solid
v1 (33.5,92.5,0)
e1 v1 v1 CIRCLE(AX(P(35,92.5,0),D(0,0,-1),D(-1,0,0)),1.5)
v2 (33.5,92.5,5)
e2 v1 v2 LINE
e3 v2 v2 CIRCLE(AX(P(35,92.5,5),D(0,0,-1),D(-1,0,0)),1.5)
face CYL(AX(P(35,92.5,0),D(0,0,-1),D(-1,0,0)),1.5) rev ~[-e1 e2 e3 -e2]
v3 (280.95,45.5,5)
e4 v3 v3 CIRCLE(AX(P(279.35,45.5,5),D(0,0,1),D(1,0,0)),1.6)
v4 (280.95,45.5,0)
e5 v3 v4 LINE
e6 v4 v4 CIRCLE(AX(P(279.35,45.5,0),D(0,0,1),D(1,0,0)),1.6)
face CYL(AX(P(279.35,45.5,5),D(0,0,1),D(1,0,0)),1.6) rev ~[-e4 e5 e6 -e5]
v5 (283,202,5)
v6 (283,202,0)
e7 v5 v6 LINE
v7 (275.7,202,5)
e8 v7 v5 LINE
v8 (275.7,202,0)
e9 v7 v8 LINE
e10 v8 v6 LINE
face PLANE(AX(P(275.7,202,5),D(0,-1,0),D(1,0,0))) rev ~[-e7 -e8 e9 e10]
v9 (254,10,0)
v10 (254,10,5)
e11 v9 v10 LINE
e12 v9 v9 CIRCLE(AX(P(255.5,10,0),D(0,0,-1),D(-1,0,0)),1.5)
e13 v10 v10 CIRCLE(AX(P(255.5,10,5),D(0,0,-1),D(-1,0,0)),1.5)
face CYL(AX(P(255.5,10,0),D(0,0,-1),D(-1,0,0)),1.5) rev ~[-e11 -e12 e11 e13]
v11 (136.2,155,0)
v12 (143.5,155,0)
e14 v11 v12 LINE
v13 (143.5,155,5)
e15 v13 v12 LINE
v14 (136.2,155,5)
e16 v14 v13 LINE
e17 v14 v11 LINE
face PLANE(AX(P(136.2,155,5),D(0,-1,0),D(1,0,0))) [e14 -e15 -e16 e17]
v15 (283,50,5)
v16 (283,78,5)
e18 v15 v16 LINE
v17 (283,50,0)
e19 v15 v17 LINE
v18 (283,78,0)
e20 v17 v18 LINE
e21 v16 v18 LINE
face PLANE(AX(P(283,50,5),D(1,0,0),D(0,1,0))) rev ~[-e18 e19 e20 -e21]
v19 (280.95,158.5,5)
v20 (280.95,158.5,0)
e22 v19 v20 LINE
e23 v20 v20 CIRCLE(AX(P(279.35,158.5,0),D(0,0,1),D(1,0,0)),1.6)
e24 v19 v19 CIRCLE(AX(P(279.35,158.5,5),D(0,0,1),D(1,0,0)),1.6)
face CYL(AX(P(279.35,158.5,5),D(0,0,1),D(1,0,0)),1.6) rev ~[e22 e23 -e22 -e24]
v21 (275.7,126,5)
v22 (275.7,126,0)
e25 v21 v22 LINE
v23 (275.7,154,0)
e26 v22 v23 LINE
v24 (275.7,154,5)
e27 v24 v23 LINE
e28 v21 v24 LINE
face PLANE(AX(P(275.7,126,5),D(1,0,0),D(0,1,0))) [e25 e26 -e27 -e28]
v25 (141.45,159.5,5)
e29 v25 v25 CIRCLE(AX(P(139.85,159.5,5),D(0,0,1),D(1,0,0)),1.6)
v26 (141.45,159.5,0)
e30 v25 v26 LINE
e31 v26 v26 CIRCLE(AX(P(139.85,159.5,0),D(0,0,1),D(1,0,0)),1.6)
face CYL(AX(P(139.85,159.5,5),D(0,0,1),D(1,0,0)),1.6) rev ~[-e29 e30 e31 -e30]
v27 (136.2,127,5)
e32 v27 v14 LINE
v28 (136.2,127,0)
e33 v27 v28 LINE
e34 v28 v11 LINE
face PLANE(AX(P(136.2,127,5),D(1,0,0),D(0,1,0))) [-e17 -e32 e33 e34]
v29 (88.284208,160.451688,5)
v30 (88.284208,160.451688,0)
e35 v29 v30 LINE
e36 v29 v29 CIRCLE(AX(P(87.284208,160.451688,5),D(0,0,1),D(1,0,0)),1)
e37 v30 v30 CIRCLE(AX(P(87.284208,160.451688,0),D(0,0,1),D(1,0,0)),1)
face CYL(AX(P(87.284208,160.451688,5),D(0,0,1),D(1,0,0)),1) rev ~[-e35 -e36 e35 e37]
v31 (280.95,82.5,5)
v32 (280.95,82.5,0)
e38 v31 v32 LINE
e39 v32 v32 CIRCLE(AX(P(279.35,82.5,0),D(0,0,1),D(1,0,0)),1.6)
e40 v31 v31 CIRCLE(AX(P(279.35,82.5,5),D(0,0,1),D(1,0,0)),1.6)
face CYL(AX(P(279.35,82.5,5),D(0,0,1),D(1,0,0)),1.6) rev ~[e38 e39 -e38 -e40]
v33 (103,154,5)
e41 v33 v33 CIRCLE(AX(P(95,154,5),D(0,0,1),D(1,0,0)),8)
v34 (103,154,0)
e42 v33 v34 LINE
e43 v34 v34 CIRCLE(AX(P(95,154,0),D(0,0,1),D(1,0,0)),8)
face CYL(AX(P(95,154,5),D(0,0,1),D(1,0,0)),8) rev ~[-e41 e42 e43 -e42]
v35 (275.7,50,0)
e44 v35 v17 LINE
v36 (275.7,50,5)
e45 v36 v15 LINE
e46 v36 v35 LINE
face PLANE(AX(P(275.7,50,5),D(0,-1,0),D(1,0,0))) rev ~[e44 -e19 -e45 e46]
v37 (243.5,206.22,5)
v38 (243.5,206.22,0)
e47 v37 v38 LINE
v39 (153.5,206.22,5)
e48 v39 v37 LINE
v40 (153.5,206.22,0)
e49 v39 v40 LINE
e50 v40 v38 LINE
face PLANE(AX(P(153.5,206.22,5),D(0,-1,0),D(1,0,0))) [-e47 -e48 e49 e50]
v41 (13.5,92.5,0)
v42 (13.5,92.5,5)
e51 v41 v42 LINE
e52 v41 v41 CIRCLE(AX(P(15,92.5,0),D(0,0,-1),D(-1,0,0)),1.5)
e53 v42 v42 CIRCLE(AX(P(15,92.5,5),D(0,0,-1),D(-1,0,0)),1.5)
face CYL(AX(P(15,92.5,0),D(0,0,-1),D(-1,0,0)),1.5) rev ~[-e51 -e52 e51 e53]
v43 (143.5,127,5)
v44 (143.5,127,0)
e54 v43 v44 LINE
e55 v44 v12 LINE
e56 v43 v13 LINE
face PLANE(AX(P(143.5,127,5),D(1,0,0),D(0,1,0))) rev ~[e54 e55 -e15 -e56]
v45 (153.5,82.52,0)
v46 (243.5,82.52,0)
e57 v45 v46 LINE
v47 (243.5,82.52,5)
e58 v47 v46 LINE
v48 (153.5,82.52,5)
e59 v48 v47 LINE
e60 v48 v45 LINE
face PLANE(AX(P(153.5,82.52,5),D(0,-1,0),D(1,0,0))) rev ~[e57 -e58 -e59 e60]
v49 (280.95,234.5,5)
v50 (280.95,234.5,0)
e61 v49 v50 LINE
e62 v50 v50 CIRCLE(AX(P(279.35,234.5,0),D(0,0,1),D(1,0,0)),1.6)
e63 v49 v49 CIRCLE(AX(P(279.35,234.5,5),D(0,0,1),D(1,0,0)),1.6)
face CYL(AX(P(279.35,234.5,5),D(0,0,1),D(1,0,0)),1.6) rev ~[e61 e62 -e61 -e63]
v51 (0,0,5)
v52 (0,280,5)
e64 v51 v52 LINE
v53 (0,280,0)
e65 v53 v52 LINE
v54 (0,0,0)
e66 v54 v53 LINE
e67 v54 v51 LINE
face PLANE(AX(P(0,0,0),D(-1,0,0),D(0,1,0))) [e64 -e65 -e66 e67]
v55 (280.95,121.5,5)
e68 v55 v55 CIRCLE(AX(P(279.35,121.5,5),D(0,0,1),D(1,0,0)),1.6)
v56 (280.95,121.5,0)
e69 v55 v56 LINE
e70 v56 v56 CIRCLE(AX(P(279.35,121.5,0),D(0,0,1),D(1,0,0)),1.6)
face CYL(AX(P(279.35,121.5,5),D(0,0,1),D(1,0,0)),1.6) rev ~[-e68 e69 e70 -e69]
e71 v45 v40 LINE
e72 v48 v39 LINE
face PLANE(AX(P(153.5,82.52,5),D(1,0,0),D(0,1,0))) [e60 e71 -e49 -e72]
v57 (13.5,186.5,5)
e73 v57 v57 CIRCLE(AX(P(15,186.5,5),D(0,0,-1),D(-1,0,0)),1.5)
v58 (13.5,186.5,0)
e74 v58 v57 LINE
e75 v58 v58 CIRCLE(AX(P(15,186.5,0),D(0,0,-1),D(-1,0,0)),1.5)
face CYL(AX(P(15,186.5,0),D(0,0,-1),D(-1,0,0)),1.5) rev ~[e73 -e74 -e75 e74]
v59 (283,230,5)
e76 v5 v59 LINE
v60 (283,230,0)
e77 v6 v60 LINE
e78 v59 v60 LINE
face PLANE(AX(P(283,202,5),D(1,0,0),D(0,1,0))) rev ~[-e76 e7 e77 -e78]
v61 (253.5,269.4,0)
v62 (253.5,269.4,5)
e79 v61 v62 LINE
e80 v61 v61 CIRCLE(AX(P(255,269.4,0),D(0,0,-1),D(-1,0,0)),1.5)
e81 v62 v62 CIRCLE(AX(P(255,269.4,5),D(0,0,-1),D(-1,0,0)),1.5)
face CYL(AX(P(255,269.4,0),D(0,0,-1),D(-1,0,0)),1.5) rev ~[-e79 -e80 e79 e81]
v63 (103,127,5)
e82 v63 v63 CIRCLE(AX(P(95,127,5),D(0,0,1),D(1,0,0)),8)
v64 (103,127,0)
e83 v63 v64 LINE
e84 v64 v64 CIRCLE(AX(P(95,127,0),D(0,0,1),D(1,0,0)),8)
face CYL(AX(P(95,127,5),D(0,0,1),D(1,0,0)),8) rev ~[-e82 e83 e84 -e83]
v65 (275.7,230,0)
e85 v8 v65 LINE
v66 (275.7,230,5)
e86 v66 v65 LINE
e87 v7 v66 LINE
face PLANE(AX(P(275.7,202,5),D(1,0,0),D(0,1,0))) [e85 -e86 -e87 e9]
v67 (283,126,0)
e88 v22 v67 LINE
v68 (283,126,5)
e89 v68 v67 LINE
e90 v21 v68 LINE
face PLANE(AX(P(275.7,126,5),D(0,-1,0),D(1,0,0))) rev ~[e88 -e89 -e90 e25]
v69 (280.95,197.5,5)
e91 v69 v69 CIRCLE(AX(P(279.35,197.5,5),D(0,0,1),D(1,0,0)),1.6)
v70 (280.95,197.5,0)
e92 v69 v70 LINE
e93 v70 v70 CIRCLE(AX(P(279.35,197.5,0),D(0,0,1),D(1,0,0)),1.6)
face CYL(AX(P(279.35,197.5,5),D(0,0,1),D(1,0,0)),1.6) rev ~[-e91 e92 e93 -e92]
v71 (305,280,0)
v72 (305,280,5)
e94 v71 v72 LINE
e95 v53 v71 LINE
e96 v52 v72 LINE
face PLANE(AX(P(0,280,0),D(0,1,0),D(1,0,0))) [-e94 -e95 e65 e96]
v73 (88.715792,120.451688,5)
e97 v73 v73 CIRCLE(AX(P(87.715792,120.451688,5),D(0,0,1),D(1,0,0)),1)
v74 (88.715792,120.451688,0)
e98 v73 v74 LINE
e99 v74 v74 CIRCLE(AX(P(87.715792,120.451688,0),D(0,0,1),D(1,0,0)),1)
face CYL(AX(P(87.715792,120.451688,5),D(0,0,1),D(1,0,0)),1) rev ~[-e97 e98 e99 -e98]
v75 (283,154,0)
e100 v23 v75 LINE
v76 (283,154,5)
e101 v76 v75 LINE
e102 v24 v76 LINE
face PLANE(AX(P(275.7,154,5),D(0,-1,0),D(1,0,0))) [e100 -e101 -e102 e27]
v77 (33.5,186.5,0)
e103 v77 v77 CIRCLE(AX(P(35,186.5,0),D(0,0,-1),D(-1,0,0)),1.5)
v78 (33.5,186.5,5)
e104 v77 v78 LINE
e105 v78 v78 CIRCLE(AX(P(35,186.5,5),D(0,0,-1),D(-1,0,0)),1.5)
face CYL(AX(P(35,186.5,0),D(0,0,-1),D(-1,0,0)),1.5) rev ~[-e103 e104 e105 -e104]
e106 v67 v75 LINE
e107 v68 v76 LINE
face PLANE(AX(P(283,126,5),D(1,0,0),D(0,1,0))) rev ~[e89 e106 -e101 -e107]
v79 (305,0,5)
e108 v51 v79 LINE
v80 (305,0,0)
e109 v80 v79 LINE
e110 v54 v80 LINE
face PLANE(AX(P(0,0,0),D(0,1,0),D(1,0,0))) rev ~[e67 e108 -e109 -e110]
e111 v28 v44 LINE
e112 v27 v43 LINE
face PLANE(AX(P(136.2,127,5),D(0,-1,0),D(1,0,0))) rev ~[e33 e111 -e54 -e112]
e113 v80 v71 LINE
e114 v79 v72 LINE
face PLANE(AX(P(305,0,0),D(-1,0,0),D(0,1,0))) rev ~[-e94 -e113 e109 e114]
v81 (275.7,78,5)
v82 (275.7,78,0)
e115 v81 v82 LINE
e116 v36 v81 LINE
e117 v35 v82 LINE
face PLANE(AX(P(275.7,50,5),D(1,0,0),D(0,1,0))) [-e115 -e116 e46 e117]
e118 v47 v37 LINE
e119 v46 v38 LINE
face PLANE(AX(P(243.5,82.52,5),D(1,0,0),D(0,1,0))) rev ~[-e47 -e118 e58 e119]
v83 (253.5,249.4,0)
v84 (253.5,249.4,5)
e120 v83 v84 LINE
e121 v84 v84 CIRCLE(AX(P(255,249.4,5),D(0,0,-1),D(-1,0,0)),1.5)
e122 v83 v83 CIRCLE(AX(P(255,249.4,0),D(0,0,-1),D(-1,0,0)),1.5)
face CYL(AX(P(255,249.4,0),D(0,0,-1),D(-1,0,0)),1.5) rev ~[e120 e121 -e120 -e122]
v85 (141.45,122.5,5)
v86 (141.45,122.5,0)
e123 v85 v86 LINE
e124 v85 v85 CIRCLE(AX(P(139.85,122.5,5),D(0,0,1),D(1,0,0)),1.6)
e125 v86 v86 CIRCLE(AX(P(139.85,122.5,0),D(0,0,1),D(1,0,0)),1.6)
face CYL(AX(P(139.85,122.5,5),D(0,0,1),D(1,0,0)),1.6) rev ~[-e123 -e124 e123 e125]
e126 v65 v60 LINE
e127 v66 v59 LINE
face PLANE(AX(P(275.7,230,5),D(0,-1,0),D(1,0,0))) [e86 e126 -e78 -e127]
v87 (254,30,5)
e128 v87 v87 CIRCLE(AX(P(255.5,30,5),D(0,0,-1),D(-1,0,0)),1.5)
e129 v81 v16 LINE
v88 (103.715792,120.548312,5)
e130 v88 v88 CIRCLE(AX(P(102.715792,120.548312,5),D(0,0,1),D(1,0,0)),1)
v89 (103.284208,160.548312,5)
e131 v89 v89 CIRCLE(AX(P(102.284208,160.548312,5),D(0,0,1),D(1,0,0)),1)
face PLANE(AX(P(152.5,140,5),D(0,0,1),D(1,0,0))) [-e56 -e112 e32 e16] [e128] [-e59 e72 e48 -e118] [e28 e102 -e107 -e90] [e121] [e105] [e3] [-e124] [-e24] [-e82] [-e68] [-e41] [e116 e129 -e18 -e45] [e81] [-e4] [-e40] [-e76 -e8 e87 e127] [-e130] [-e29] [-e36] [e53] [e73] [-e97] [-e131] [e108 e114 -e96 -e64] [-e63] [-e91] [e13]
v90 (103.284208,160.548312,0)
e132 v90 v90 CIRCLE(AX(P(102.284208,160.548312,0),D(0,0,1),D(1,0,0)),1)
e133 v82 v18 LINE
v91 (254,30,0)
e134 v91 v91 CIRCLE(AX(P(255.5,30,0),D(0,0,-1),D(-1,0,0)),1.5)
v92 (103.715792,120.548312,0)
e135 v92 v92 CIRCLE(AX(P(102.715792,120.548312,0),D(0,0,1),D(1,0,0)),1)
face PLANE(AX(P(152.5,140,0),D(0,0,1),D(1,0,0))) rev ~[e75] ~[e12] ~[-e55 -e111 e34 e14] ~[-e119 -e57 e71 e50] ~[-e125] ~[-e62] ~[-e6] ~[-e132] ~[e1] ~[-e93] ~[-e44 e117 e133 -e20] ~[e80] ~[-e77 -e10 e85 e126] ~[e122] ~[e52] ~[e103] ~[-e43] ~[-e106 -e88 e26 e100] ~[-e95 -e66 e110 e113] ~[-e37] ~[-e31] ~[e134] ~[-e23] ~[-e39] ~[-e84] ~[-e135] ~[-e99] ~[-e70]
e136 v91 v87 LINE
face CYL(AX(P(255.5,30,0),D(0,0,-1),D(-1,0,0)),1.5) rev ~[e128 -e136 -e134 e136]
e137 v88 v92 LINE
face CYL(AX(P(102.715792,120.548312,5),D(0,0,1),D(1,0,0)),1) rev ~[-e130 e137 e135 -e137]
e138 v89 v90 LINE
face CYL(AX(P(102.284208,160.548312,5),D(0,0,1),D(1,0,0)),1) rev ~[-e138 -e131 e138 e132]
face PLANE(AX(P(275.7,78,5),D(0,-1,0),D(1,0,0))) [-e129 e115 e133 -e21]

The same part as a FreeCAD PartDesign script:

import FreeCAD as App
import Part
import Sketcher

V = App.Vector


def add_polygon(sketch, points):
    """Adds a closed chain of lines whose ends are joined by coincident constraints."""
    first, n = sketch.GeometryCount, len(points)
    for a, b in zip(points, points[1:] + points[:1]):
        sketch.addGeometry(Part.LineSegment(App.Vector(*a, 0), App.Vector(*b, 0)), False)
    for i in range(n):
        sketch.addConstraint(Sketcher.Constraint("Coincident", first + i, 2, first + (i + 1) % n, 1))

doc = App.newDocument("Part")
body = doc.addObject("PartDesign::Body", "Body")

# Sketch on XY plane
sketch1 = doc.addObject("Sketcher::SketchObject", "Sketch")
body.addObject(sketch1)
sketch1.AttachmentSupport = (doc.XY_Plane, [""])
sketch1.MapMode = "FlatFace"
add_polygon(sketch1, [(0, 280), (0, 0), (305, 0), (305, 280)])  # lines 0-3
sketch1.addConstraint(Sketcher.Constraint("Vertical", 0))
sketch1.addConstraint(Sketcher.Constraint("Horizontal", 1))
sketch1.addConstraint(Sketcher.Constraint("Vertical", 2))
sketch1.addConstraint(Sketcher.Constraint("Horizontal", 3))
sketch1.addConstraint(Sketcher.Constraint("Coincident", 0, 2, -1, 1))
sketch1.addConstraint(Sketcher.Constraint("DistanceX", 1, 1, 1, 2, 305.0))
sketch1.addConstraint(Sketcher.Constraint("DistanceY", 0, 2, 0, 1, 280.0))
pad1 = doc.addObject("PartDesign::Pad", "Pad")
body.addObject(pad1)
pad1.Profile = sketch1
pad1.Length = 5

# Sketch on XY plane
sketch2 = doc.addObject("Sketcher::SketchObject", "Sketch001")
body.addObject(sketch2)
sketch2.AttachmentSupport = (doc.XY_Plane, [""])
sketch2.MapMode = "FlatFace"
sketch2.AttachmentOffset = App.Placement(V(0, 0, 5), App.Rotation())
add_polygon(sketch2, [(153.5, 206.22), (153.5, 82.52), (243.5, 82.52), (243.5, 206.22)])  # lines 0-3
sketch2.addConstraint(Sketcher.Constraint("Vertical", 0))
sketch2.addConstraint(Sketcher.Constraint("Horizontal", 1))
sketch2.addConstraint(Sketcher.Constraint("Vertical", 2))
sketch2.addConstraint(Sketcher.Constraint("Horizontal", 3))
sketch2.addConstraint(Sketcher.Constraint("DistanceX", 1, 1, 1, 2, 90.0))
sketch2.addConstraint(Sketcher.Constraint("DistanceY", 0, 2, 0, 1, 123.7))
sketch2.addConstraint(Sketcher.Constraint("DistanceX", -1, 1, 0, 2, 153.5))
sketch2.addConstraint(Sketcher.Constraint("DistanceY", -1, 1, 0, 2, 82.52))
pocket1 = doc.addObject("PartDesign::Pocket", "Pocket")
body.addObject(pocket1)
pocket1.Profile = sketch2
pocket1.Length = 5

# Sketch on XY plane
sketch3 = doc.addObject("Sketcher::SketchObject", "Sketch002")
body.addObject(sketch3)
sketch3.AttachmentSupport = (doc.XY_Plane, [""])
sketch3.MapMode = "FlatFace"
sketch3.addGeometry(Part.Circle(V(15, 92.5, 0), V(0, 0, 1), 1.5), False)
sketch3.addGeometry(Part.Circle(V(35, 92.5, 0), V(0, 0, 1), 1.5), False)
sketch3.addGeometry(Part.Circle(V(35, 186.5, 0), V(0, 0, 1), 1.5), False)
sketch3.addGeometry(Part.Circle(V(15, 186.5, 0), V(0, 0, 1), 1.5), False)
sketch3.addGeometry(Part.Circle(V(255, 249.4, 0), V(0, 0, 1), 1.5), False)
sketch3.addGeometry(Part.Circle(V(255, 269.4, 0), V(0, 0, 1), 1.5), False)
sketch3.addGeometry(Part.Circle(V(255.5, 10, 0), V(0, 0, 1), 1.5), False)
sketch3.addGeometry(Part.Circle(V(255.5, 30, 0), V(0, 0, 1), 1.5), False)
sketch3.addConstraint(Sketcher.Constraint("Equal", 0, 1))
sketch3.addConstraint(Sketcher.Constraint("Equal", 1, 2))
sketch3.addConstraint(Sketcher.Constraint("Equal", 2, 3))
sketch3.addConstraint(Sketcher.Constraint("Equal", 3, 4))
sketch3.addConstraint(Sketcher.Constraint("Equal", 4, 5))
sketch3.addConstraint(Sketcher.Constraint("Equal", 5, 6))
sketch3.addConstraint(Sketcher.Constraint("Equal", 6, 7))
sketch3.addConstraint(Sketcher.Constraint("Horizontal", 0, 3, 1, 3))
sketch3.addConstraint(Sketcher.Constraint("Horizontal", 2, 3, 3, 3))
sketch3.addConstraint(Sketcher.Constraint("Vertical", 1, 3, 2, 3))
sketch3.addConstraint(Sketcher.Constraint("Vertical", 0, 3, 3, 3))
sketch3.addConstraint(Sketcher.Constraint("Vertical", 4, 3, 5, 3))
sketch3.addConstraint(Sketcher.Constraint("Vertical", 6, 3, 7, 3))
sketch3.addConstraint(Sketcher.Constraint("Diameter", 0, 3.0))
sketch3.addConstraint(Sketcher.Constraint("DistanceX", -1, 1, 0, 3, 15.0))
sketch3.addConstraint(Sketcher.Constraint("DistanceX", -1, 1, 1, 3, 35.0))
sketch3.addConstraint(Sketcher.Constraint("DistanceX", -1, 1, 4, 3, 255.0))
sketch3.addConstraint(Sketcher.Constraint("DistanceY", -1, 1, 6, 3, 10.0))
sketch3.addConstraint(Sketcher.Constraint("DistanceY", -1, 1, 7, 3, 30.0))
sketch3.addConstraint(Sketcher.Constraint("DistanceY", 1, 3, 2, 3, 94.0))
sketch3.addConstraint(Sketcher.Constraint("DistanceY", 4, 3, 5, 3, 20.0))
sketch3.addConstraint(Sketcher.Constraint("DistanceY", -1, 1, 0, 3, 92.5))
sketch3.addConstraint(Sketcher.Constraint("DistanceY", -1, 1, 4, 3, 249.4))
sketch3.addConstraint(Sketcher.Constraint("DistanceX", -1, 1, 6, 3, 255.5))
pocket2 = doc.addObject("PartDesign::Pocket", "Pocket001")
body.addObject(pocket2)
pocket2.Profile = sketch3
pocket2.Type = "ThroughAll"
pocket2.Reversed = True

# Sketch on XY plane
sketch4 = doc.addObject("Sketcher::SketchObject", "Sketch003")
body.addObject(sketch4)
sketch4.AttachmentSupport = (doc.XY_Plane, [""])
sketch4.MapMode = "FlatFace"
sketch4.AttachmentOffset = App.Placement(V(0, 0, 5), App.Rotation())
sketch4.addGeometry(Part.Circle(V(139.85, 159.5, 0), V(0, 0, 1), 1.6), False)  # 0
sketch4.addGeometry(Part.Circle(V(139.85, 122.5, 0), V(0, 0, 1), 1.6), False)  # 1
sketch4.addGeometry(Part.Circle(V(279.35, 82.5, 0), V(0, 0, 1), 1.6), False)  # 2
sketch4.addGeometry(Part.Circle(V(279.35, 45.5, 0), V(0, 0, 1), 1.6), False)  # 3
sketch4.addGeometry(Part.Circle(V(279.35, 121.5, 0), V(0, 0, 1), 1.6), False)  # 4
sketch4.addGeometry(Part.Circle(V(279.35, 158.5, 0), V(0, 0, 1), 1.6), False)  # 5
sketch4.addGeometry(Part.Circle(V(279.35, 197.5, 0), V(0, 0, 1), 1.6), False)  # 6
sketch4.addGeometry(Part.Circle(V(279.35, 234.5, 0), V(0, 0, 1), 1.6), False)  # 7
add_polygon(sketch4, [(275.7, 78), (275.7, 50), (283, 50), (283, 78)])  # lines 8-11
add_polygon(sketch4, [(275.7, 154), (275.7, 126), (283, 126), (283, 154)])  # lines 12-15
add_polygon(sketch4, [(275.7, 230), (275.7, 202), (283, 202), (283, 230)])  # lines 16-19
add_polygon(sketch4, [(136.2, 155), (136.2, 127), (143.5, 127), (143.5, 155)])  # lines 20-23
sketch4.addConstraint(Sketcher.Constraint("Vertical", 8))
sketch4.addConstraint(Sketcher.Constraint("Horizontal", 9))
sketch4.addConstraint(Sketcher.Constraint("Vertical", 10))
sketch4.addConstraint(Sketcher.Constraint("Horizontal", 11))
sketch4.addConstraint(Sketcher.Constraint("Vertical", 12))
sketch4.addConstraint(Sketcher.Constraint("Horizontal", 13))
sketch4.addConstraint(Sketcher.Constraint("Vertical", 14))
sketch4.addConstraint(Sketcher.Constraint("Horizontal", 15))
sketch4.addConstraint(Sketcher.Constraint("Vertical", 16))
sketch4.addConstraint(Sketcher.Constraint("Horizontal", 17))
sketch4.addConstraint(Sketcher.Constraint("Vertical", 18))
sketch4.addConstraint(Sketcher.Constraint("Horizontal", 19))
sketch4.addConstraint(Sketcher.Constraint("Vertical", 20))
sketch4.addConstraint(Sketcher.Constraint("Horizontal", 21))
sketch4.addConstraint(Sketcher.Constraint("Vertical", 22))
sketch4.addConstraint(Sketcher.Constraint("Horizontal", 23))
sketch4.addConstraint(Sketcher.Constraint("Equal", 0, 1))
sketch4.addConstraint(Sketcher.Constraint("Equal", 1, 2))
sketch4.addConstraint(Sketcher.Constraint("Equal", 2, 3))
sketch4.addConstraint(Sketcher.Constraint("Equal", 3, 4))
sketch4.addConstraint(Sketcher.Constraint("Equal", 4, 5))
sketch4.addConstraint(Sketcher.Constraint("Equal", 5, 6))
sketch4.addConstraint(Sketcher.Constraint("Equal", 6, 7))
sketch4.addConstraint(Sketcher.Constraint("Vertical", 0, 3, 1, 3))
sketch4.addConstraint(Sketcher.Constraint("Vertical", 2, 3, 3, 3))
sketch4.addConstraint(Sketcher.Constraint("Vertical", 3, 3, 4, 3))
sketch4.addConstraint(Sketcher.Constraint("Vertical", 4, 3, 5, 3))
sketch4.addConstraint(Sketcher.Constraint("Vertical", 5, 3, 6, 3))
sketch4.addConstraint(Sketcher.Constraint("Vertical", 6, 3, 7, 3))
sketch4.addConstraint(Sketcher.Constraint("Vertical", 11, 2, 12, 2))
sketch4.addConstraint(Sketcher.Constraint("Vertical", 10, 2, 13, 2))
sketch4.addConstraint(Sketcher.Constraint("Vertical", 15, 2, 16, 2))
sketch4.addConstraint(Sketcher.Constraint("Vertical", 14, 2, 17, 2))
sketch4.addConstraint(Sketcher.Constraint("Equal", 19, 21))
sketch4.addConstraint(Sketcher.Constraint("Equal", 10, 12))
sketch4.addConstraint(Sketcher.Constraint("Equal", 14, 16))
sketch4.addConstraint(Sketcher.Constraint("Equal", 18, 20))
sketch4.addConstraint(Sketcher.Constraint("Diameter", 0, 3.2))
sketch4.addConstraint(Sketcher.Constraint("DistanceY", 8, 2, 8, 1, 28.0))
sketch4.addConstraint(Sketcher.Constraint("DistanceX", 9, 1, 9, 2, 7.3))
sketch4.addConstraint(Sketcher.Constraint("DistanceY", -1, 1, 8, 2, 50.0))
sketch4.addConstraint(Sketcher.Constraint("DistanceX", -1, 1, 9, 2, 283.0))
sketch4.addConstraint(Sketcher.Constraint("DistanceY", -1, 1, 12, 2, 126.0))
sketch4.addConstraint(Sketcher.Constraint("DistanceY", -1, 1, 16, 2, 202.0))
sketch4.addConstraint(Sketcher.Constraint("DistanceY", -1, 1, 20, 2, 127.0))
sketch4.addConstraint(Sketcher.Constraint("DistanceY", 1, 3, 0, 3, 37.0))
sketch4.addConstraint(Sketcher.Constraint("DistanceY", 2, 3, 1, 3, 40.0))
sketch4.addConstraint(Sketcher.Constraint("DistanceY", 3, 3, 2, 3, 37.0))
sketch4.addConstraint(Sketcher.Constraint("DistanceY", 2, 3, 4, 3, 39.0))
sketch4.addConstraint(Sketcher.Constraint("DistanceY", 4, 3, 5, 3, 37.0))
sketch4.addConstraint(Sketcher.Constraint("DistanceY", 5, 3, 6, 3, 39.0))
sketch4.addConstraint(Sketcher.Constraint("DistanceY", 6, 3, 7, 3, 37.0))
sketch4.addConstraint(Sketcher.Constraint("DistanceY", -1, 1, 0, 3, 159.5))
sketch4.addConstraint(Sketcher.Constraint("DistanceX", -1, 1, 20, 2, 136.2))
sketch4.addConstraint(Sketcher.Constraint("DistanceX", 1, 3, 2, 3, 139.5))
sketch4.addConstraint(Sketcher.Constraint("DistanceX", -1, 1, 0, 3, 139.85))
pocket3 = doc.addObject("PartDesign::Pocket", "Pocket002")
body.addObject(pocket3)
pocket3.Profile = sketch4
pocket3.Type = "ThroughAll"

# Sketch on XY plane
sketch5 = doc.addObject("Sketcher::SketchObject", "Sketch004")
body.addObject(sketch5)
sketch5.AttachmentSupport = (doc.XY_Plane, [""])
sketch5.MapMode = "FlatFace"
sketch5.AttachmentOffset = App.Placement(V(0, 0, 5), App.Rotation())
sketch5.addGeometry(Part.Circle(V(95, 127, 0), V(0, 0, 1), 8), False)
sketch5.addGeometry(Part.Circle(V(95, 154, 0), V(0, 0, 1), 8), False)
sketch5.addGeometry(Part.Circle(V(87.715792, 120.451688, 0), V(0, 0, 1), 1), False)
sketch5.addGeometry(Part.Circle(V(87.284208, 160.451688, 0), V(0, 0, 1), 1), False)
sketch5.addGeometry(Part.Circle(V(102.284208, 160.548312, 0), V(0, 0, 1), 1), False)
sketch5.addGeometry(Part.Circle(V(102.715792, 120.548312, 0), V(0, 0, 1), 1), False)
sketch5.addConstraint(Sketcher.Constraint("Equal", 0, 1))
sketch5.addConstraint(Sketcher.Constraint("Equal", 2, 3))
sketch5.addConstraint(Sketcher.Constraint("Equal", 3, 4))
sketch5.addConstraint(Sketcher.Constraint("Equal", 4, 5))
sketch5.addConstraint(Sketcher.Constraint("Vertical", 0, 3, 1, 3))
sketch5.addConstraint(Sketcher.Constraint("Diameter", 0, 16.0))
sketch5.addConstraint(Sketcher.Constraint("Diameter", 2, 2.0))
sketch5.addConstraint(Sketcher.Constraint("DistanceX", -1, 1, 0, 3, 95.0))
sketch5.addConstraint(Sketcher.Constraint("DistanceY", -1, 1, 0, 3, 127.0))
sketch5.addConstraint(Sketcher.Constraint("DistanceY", -1, 1, 1, 3, 154.0))
sketch5.addConstraint(Sketcher.Constraint("DistanceY", 2, 3, 3, 3, 40.0))
sketch5.addConstraint(Sketcher.Constraint("DistanceX", 3, 3, 4, 3, 15.0))
sketch5.addConstraint(Sketcher.Constraint("DistanceX", 2, 3, 5, 3, 15.0))
sketch5.addConstraint(Sketcher.Constraint("DistanceY", 5, 3, 4, 3, 40.0))
sketch5.addConstraint(Sketcher.Constraint("DistanceX", -1, 1, 2, 3, 87.715792))
sketch5.addConstraint(Sketcher.Constraint("DistanceY", -1, 1, 2, 3, 120.451688))
sketch5.addConstraint(Sketcher.Constraint("DistanceX", -1, 1, 3, 3, 87.284208))
sketch5.addConstraint(Sketcher.Constraint("DistanceY", -1, 1, 4, 3, 160.548312))
pocket4 = doc.addObject("PartDesign::Pocket", "Pocket003")
body.addObject(pocket4)
pocket4.Profile = sketch5
pocket4.Type = "ThroughAll"

doc.recompute()
